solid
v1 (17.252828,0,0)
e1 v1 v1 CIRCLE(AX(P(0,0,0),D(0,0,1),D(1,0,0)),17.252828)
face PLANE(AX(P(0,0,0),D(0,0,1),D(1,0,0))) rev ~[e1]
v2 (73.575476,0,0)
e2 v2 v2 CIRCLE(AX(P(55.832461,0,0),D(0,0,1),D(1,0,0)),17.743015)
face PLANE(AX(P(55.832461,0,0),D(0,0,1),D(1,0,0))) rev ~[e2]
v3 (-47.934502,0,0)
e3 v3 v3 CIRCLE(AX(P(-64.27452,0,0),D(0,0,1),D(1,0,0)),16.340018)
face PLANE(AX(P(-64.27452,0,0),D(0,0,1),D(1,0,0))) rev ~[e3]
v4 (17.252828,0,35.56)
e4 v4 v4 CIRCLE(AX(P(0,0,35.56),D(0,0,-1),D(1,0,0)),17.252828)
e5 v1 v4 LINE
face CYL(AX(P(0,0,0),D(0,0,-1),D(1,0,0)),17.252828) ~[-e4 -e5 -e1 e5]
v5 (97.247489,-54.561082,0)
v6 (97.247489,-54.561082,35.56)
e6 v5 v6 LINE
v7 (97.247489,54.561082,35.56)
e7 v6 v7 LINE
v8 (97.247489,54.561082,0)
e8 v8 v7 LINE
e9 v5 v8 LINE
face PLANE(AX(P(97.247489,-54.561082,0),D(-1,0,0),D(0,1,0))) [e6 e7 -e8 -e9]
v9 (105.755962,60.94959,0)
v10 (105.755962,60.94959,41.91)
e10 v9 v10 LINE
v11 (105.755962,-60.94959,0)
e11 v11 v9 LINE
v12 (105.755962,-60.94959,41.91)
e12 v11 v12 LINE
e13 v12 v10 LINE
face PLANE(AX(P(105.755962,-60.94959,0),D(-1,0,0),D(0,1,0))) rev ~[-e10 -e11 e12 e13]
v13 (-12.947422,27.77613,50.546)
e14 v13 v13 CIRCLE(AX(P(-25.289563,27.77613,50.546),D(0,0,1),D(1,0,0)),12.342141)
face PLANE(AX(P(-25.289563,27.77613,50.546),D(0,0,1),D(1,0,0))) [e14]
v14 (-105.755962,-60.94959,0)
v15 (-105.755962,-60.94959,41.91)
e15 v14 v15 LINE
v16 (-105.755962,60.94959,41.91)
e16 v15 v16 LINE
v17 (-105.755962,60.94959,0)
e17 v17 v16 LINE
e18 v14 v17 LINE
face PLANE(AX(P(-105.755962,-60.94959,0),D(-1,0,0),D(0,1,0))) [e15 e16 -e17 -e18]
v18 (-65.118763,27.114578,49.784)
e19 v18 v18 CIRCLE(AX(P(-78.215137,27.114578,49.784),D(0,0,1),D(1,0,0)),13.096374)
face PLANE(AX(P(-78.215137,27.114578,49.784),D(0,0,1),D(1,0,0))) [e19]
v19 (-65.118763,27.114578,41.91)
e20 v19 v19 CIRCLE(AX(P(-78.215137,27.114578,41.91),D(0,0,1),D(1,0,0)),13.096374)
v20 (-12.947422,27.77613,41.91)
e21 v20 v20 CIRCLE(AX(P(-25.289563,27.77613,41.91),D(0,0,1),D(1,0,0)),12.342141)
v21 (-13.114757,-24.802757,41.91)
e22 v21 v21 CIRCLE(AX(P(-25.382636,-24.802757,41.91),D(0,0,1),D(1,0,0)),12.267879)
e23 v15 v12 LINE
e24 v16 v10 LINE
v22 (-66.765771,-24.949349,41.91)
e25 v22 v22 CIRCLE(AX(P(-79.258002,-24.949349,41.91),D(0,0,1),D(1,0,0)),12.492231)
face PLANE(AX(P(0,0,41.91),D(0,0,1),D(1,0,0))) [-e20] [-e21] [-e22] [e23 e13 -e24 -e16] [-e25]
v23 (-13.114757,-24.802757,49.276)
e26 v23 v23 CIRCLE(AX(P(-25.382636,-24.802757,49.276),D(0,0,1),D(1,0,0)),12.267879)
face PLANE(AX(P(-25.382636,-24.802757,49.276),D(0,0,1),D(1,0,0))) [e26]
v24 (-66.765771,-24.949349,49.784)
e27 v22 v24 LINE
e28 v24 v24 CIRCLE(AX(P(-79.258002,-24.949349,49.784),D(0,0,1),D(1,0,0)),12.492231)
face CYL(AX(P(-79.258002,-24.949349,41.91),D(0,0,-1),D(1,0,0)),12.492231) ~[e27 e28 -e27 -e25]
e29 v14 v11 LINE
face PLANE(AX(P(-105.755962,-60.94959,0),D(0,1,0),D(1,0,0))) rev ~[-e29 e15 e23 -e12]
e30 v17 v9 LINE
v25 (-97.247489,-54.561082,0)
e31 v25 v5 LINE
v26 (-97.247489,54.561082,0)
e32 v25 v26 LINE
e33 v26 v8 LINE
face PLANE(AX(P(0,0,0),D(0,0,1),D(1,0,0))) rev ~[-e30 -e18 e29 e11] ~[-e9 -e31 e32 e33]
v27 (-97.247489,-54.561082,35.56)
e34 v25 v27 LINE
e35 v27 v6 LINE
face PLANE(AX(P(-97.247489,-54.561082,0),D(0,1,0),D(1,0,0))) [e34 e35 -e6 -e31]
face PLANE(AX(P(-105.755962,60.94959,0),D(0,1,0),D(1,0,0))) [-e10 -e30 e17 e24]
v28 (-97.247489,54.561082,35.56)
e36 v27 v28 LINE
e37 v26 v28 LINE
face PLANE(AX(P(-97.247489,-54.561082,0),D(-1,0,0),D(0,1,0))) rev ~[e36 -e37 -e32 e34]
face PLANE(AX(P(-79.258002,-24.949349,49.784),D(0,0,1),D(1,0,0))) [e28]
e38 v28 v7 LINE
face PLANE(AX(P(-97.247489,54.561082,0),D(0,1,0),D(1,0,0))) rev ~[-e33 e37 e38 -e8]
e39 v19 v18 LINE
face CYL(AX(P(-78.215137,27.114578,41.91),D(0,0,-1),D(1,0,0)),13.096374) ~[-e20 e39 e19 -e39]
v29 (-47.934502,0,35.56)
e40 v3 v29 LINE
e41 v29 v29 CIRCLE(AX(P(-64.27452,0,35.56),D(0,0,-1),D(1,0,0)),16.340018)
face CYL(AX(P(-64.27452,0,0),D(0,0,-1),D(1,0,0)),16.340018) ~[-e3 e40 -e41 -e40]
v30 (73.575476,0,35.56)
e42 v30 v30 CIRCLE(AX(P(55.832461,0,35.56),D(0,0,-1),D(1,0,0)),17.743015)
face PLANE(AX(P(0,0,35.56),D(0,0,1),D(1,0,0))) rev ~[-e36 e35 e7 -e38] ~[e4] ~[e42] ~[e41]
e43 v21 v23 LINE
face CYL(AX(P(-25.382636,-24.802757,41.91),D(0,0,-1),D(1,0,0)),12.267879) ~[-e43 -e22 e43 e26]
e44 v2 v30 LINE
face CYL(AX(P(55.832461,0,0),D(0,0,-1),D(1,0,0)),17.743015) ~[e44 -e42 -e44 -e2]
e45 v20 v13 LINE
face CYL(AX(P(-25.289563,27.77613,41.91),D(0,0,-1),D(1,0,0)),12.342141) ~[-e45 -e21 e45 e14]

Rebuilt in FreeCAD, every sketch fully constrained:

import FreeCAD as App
import Part
import Sketcher
from FreeCAD import Vector
Q = App.Units.Quantity


def add_polygon(sketch, points):
    """Adds a closed chain of lines whose ends are joined by coincident constraints."""
    first, n = sketch.GeometryCount, len(points)
    for a, b in zip(points, points[1:] + points[:1]):
        sketch.addGeometry(Part.LineSegment(App.Vector(*a, 0), App.Vector(*b, 0)), False)
    for i in range(n):
        sketch.addConstraint(Sketcher.Constraint("Coincident", first + i, 2, first + (i + 1) % n, 1))

doc = App.newDocument("Part")
body = doc.addObject("PartDesign::Body", "Body")

# Sketch on XY plane
sketch1 = body.newObject("Sketcher::SketchObject", "Sketch")
sketch1.AttachmentSupport = (doc.getObject("XY_Plane"), [""])
sketch1.MapMode = "FlatFace"
add_polygon(sketch1, [(-106, 61), (-106, -61), (106, -61), (106, 61)])  # lines 0-3
sketch1.addConstraint(Sketcher.Constraint("Vertical", 0))
sketch1.addConstraint(Sketcher.Constraint("Horizontal", 1))
sketch1.addConstraint(Sketcher.Constraint("Vertical", 2))
sketch1.addConstraint(Sketcher.Constraint("Horizontal", 3))
sketch1.addConstraint(Sketcher.Constraint("Symmetric", 0, 2, 2, 2, -1, 1))
sketch1.addConstraint(Sketcher.Constraint("DistanceY", 0, 2, 0, 1, 121.89918))
sketch1.addConstraint(Sketcher.Constraint("DistanceX", 1, 1, 1, 2, 211.511924))
pad1 = body.newObject("PartDesign::Pad", "Pad")
pad1.Profile = sketch1
pad1.Length = Q("1.65 in")

# Sketch on XY plane
sketch2 = body.newObject("Sketcher::SketchObject", "Sketch001")
sketch2.AttachmentSupport = (doc.getObject("XY_Plane"), [""])
sketch2.MapMode = "FlatFace"
sketch2.AttachmentOffset = App.Placement(Vector(0, 0, 1.65 * 25.4), App.Rotation())
sketch2.addGeometry(Part.Circle(Vector(-78, 27, 0), Vector(0, 0, 1), 13), False)
sketch2.addConstraint(Sketcher.Constraint("Diameter", 0, 26.192748))
sketch2.addConstraint(Sketcher.Constraint("DistanceY", -1, 1, 0, 3, 27.114578))
sketch2.addConstraint(Sketcher.Constraint("DistanceX", 0, 3, -1, 1, 78.215137))
pad2 = body.newObject("PartDesign::Pad", "Pad001")
pad2.Profile = sketch2
pad2.Length = Q("0.31 in")

# Sketch on XY plane
sketch3 = body.newObject("Sketcher::SketchObject", "Sketch002")
sketch3.AttachmentSupport = (doc.getObject("XY_Plane"), [""])
sketch3.MapMode = "FlatFace"
sketch3.AttachmentOffset = App.Placement(Vector(0, 0, 1.65 * 25.4), App.Rotation())
sketch3.addGeometry(Part.Circle(Vector(-79, -25, 0), Vector(0, 0, 1), 12), False)
sketch3.addConstraint(Sketcher.Constraint("Diameter", 0, 24.984462))
sketch3.addConstraint(Sketcher.Constraint("DistanceY", 0, 3, -1, 1, 24.949349))
sketch3.addConstraint(Sketcher.Constraint("DistanceX", 0, 3, -1, 1, 79.258002))
pad3 = body.newObject("PartDesign::Pad", "Pad002")
pad3.Profile = sketch3
pad3.Length = Q("0.31 in")

# Sketch on XY plane
sketch4 = body.newObject("Sketcher::SketchObject", "Sketch003")
sketch4.AttachmentSupport = (doc.getObject("XY_Plane"), [""])
sketch4.MapMode = "FlatFace"
sketch4.AttachmentOffset = App.Placement(Vector(0, 0, 1.65 * 25.4), App.Rotation())
sketch4.addGeometry(Part.Circle(Vector(-25, 28, 0), Vector(0, 0, 1), 12), False)
sketch4.addConstraint(Sketcher.Constraint("Diameter", 0, 24.684282))
sketch4.addConstraint(Sketcher.Constraint("DistanceY", -1, 1, 0, 3, 27.77613))
sketch4.addConstraint(Sketcher.Constraint("DistanceX", 0, 3, -1, 1, 25.289563))
pad4 = body.newObject("PartDesign::Pad", "Pad003")
pad4.Profile = sketch4
pad4.Length = Q("0.34 in")

# Sketch on XY plane
sketch5 = body.newObject("Sketcher::SketchObject", "Sketch004")
sketch5.AttachmentSupport = (doc.getObject("XY_Plane"), [""])
sketch5.MapMode = "FlatFace"
sketch5.AttachmentOffset = App.Placement(Vector(0, 0, 1.65 * 25.4), App.Rotation())
sketch5.addGeometry(Part.Circle(Vector(-25, -25, 0), Vector(0, 0, 1), 12), False)
sketch5.addConstraint(Sketcher.Constraint("Diameter", 0, 24.535758))
sketch5.addConstraint(Sketcher.Constraint("DistanceX", 0, 3, -1, 1, 25.382636))
sketch5.addConstraint(Sketcher.Constraint("DistanceY", 0, 3, -1, 1, 24.802757))
pad5 = body.newObject("PartDesign::Pad", "Pad004")
pad5.Profile = sketch5
pad5.Length = Q("0.29 in")

# Sketch on XY plane
sketch6 = body.newObject("Sketcher::SketchObject", "Sketch005")
sketch6.AttachmentSupport = (doc.getObject("XY_Plane"), [""])
sketch6.MapMode = "FlatFace"
add_polygon(sketch6, [(-97, 55), (-97, -55), (97, -55), (97, 55)])  # lines 0-3
sketch6.addConstraint(Sketcher.Constraint("Vertical", 0))
sketch6.addConstraint(Sketcher.Constraint("Horizontal", 1))
sketch6.addConstraint(Sketcher.Constraint("Vertical", 2))
sketch6.addConstraint(Sketcher.Constraint("Horizontal", 3))
sketch6.addConstraint(Sketcher.Constraint("Symmetric", 0, 2, 2, 2, -1, 1))
sketch6.addConstraint(Sketcher.Constraint("DistanceX", 1, 1, 1, 2, 194.494978))
sketch6.addConstraint(Sketcher.Constraint("DistanceY", 0, 2, 0, 1, 109.122164))
pocket1 = body.newObject("PartDesign::Pocket", "Pocket")
pocket1.Profile = sketch6
pocket1.Length = Q("1.4 in")
pocket1.Reversed = True

# Sketch on XY plane
sketch7 = body.newObject("Sketcher::SketchObject", "Sketch006")
sketch7.AttachmentSupport = (doc.getObject("XY_Plane"), [""])
sketch7.MapMode = "FlatFace"
sketch7.addGeometry(Part.Circle(Vector(0, 0, 0), Vector(0, 0, 1), 17), False)
sketch7.addConstraint(Sketcher.Constraint("Coincident", 0, 3, -1, 1))
sketch7.addConstraint(Sketcher.Constraint("Diameter", 0, 34.505656))
pad6 = body.newObject("PartDesign::Pad", "Pad005")
pad6.Profile = sketch7
pad6.Length = 40.852703

# Sketch on XY plane
sketch8 = body.newObject("Sketcher::SketchObject", "Sketch007")
sketch8.AttachmentSupport = (doc.getObject("XY_Plane"), [""])
sketch8.MapMode = "FlatFace"
sketch8.addGeometry(Part.Circle(Vector(-64, 0, 0), Vector(0, 0, 1), 16), False)
sketch8.addConstraint(Sketcher.Constraint("PointOnObject", 0, 3, -1))
sketch8.addConstraint(Sketcher.Constraint("Diameter", 0, 32.680036))
sketch8.addConstraint(Sketcher.Constraint("DistanceX", 0, 3, -1, 1, 64.27452))
pad7 = body.newObject("PartDesign::Pad", "Pad006")
pad7.Profile = sketch8
pad7.Length = 40.93973

# Sketch on XY plane
sketch9 = body.newObject("Sketcher::SketchObject", "Sketch008")
sketch9.AttachmentSupport = (doc.getObject("XY_Plane"), [""])
sketch9.MapMode = "FlatFace"
sketch9.addGeometry(Part.Circle(Vector(56, 0, 0), Vector(0, 0, 1), 18), False)
sketch9.addConstraint(Sketcher.Constraint("PointOnObject", 0, 3, -1))
sketch9.addConstraint(Sketcher.Constraint("Diameter", 0, 35.48603))
sketch9.addConstraint(Sketcher.Constraint("DistanceX", -1, 1, 0, 3, 55.832461))
pad8 = body.newObject("PartDesign::Pad", "Pad007")
pad8.Profile = sketch9
pad8.Length = 41.344658

doc.recompute()
